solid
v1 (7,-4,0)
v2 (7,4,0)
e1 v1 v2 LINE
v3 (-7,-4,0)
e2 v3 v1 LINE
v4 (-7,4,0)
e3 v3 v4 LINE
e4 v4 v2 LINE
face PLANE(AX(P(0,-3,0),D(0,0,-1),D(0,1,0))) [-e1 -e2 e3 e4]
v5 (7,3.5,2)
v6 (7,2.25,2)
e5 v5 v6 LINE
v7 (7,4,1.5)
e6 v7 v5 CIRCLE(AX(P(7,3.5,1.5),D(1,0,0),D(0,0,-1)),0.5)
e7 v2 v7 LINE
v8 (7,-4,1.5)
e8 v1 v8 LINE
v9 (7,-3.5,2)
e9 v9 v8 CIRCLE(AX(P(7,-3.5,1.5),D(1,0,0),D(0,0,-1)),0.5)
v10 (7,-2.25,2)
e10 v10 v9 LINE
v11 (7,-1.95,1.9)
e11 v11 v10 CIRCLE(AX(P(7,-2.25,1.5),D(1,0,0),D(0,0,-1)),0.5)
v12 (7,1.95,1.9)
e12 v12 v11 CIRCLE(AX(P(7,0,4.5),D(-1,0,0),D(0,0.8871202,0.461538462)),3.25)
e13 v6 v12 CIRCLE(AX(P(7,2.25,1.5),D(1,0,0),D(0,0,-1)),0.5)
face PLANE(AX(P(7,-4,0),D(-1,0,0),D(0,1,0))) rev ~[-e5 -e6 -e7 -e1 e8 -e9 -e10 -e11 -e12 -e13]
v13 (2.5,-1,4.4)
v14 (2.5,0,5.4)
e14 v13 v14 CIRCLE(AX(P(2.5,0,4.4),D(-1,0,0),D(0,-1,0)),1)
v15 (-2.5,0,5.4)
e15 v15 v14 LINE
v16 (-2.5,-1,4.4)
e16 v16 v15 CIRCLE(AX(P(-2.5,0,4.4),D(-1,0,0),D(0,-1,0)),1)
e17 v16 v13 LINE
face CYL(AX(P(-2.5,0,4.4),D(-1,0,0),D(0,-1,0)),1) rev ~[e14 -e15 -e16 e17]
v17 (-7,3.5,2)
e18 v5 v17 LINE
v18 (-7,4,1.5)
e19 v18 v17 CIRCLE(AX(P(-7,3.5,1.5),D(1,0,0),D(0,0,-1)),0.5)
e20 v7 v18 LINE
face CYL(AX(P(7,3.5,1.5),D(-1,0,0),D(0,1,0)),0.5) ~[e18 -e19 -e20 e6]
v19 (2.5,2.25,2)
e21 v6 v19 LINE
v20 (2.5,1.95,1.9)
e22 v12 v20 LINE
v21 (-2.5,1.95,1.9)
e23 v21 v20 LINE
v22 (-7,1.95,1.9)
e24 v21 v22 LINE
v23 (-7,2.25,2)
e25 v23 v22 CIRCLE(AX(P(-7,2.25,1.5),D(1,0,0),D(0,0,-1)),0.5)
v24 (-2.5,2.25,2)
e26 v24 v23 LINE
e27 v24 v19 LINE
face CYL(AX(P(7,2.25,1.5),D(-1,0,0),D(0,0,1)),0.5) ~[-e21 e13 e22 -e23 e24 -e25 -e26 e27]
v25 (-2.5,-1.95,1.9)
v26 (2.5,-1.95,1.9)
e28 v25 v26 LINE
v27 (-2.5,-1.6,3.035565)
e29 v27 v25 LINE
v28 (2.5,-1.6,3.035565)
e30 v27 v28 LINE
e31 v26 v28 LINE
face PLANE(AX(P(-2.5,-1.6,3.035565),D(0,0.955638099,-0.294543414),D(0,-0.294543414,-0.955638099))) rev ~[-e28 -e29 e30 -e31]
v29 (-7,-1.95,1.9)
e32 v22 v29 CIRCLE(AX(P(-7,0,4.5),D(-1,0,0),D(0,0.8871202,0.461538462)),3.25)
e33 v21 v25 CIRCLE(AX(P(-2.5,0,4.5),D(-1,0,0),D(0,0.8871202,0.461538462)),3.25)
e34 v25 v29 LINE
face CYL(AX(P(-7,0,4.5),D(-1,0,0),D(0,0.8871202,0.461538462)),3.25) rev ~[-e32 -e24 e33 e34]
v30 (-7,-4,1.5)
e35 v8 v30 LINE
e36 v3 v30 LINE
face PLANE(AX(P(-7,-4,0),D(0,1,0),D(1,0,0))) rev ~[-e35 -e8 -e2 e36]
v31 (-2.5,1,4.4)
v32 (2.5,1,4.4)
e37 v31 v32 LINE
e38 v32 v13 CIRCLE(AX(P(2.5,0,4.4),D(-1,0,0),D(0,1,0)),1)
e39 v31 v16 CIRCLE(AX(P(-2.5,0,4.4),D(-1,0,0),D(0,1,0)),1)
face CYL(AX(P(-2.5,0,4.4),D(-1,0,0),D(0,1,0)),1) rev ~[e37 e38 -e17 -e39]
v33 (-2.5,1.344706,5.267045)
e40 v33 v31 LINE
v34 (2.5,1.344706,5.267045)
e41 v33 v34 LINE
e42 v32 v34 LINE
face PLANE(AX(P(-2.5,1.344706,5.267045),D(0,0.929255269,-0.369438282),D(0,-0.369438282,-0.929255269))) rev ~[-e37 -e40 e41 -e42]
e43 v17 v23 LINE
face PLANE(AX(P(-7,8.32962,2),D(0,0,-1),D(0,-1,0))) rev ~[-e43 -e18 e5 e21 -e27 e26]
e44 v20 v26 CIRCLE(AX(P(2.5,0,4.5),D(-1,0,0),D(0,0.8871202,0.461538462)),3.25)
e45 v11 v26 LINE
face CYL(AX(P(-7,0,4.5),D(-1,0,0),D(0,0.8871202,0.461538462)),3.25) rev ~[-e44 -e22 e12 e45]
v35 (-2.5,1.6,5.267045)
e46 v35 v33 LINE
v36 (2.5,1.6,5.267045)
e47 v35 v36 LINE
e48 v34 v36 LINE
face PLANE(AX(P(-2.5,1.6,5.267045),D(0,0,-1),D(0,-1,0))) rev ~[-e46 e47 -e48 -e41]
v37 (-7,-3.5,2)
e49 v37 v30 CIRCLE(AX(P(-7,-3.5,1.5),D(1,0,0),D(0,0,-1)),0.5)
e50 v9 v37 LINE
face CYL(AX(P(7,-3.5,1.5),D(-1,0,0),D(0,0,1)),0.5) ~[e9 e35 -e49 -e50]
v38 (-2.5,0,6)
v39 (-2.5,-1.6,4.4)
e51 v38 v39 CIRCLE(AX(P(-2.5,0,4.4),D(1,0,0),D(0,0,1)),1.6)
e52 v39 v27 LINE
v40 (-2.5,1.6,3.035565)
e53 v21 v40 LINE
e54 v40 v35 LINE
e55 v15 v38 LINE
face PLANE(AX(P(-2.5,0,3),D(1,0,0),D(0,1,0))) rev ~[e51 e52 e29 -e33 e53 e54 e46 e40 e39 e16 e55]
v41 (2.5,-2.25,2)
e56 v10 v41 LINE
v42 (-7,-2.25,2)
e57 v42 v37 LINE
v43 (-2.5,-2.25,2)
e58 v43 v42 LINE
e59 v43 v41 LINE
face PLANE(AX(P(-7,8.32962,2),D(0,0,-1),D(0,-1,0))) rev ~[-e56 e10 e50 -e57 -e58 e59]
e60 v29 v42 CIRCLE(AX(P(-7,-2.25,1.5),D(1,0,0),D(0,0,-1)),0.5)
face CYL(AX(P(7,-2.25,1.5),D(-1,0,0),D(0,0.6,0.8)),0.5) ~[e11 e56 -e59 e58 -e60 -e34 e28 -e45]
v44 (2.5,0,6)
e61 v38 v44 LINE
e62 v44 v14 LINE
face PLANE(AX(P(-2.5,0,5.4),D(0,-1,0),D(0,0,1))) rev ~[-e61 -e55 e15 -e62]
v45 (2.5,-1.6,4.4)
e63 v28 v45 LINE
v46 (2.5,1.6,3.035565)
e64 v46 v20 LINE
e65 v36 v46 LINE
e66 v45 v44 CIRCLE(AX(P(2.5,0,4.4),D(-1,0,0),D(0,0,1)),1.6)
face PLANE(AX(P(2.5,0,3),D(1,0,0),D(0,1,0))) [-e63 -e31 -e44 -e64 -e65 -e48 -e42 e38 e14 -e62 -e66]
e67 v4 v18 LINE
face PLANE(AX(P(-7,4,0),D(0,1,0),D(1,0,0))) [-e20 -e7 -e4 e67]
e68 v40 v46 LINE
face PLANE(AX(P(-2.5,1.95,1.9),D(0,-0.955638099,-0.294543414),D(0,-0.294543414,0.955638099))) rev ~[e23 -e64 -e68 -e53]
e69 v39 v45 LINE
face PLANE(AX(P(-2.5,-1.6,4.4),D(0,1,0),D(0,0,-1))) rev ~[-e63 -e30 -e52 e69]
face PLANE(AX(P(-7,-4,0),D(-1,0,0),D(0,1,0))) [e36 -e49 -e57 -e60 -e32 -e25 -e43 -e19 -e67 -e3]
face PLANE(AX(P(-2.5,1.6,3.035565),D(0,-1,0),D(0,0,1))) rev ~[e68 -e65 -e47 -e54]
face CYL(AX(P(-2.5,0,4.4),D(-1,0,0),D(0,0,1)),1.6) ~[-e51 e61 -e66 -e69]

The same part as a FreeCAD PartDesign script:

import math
import FreeCAD as App
import Part
import Sketcher
Q = App.Units.Quantity


def edges_at(feature, points):
    """Names of the edges that pass closest to the given points."""
    edges = feature.Shape.Edges
    near = lambda p: min(range(len(edges)), key=lambda i: edges[i].distToShape(Part.Vertex(*p))[0])
    return sorted({f"Edge{near(p) + 1}" for p in points})

doc = App.newDocument("Part")
body = doc.addObject("PartDesign::Body", "Body")

sketch1 = body.newObject("Sketcher::SketchObject", "Sketch")
sketch1.AttachmentSupport = (doc.getObject("XY_Plane"), [""])
sketch1.MapMode = "FlatFace"
sketch1.addGeometry([
    Part.LineSegment(App.Vector(-7, 4, 0), App.Vector(-7, -4, 0)),
    Part.LineSegment(App.Vector(-7, -4, 0), App.Vector(7, -4, 0)),
    Part.LineSegment(App.Vector(7, -4, 0), App.Vector(7, 4, 0)),
    Part.LineSegment(App.Vector(7, 4, 0), App.Vector(-7, 4, 0)),
], False)
sketch1.addConstraint([
    Sketcher.Constraint("Coincident", 0, 2, 1, 1),
    Sketcher.Constraint("Coincident", 1, 2, 2, 1),
    Sketcher.Constraint("Coincident", 2, 2, 3, 1),
    Sketcher.Constraint("Coincident", 3, 2, 0, 1),
    Sketcher.Constraint("Vertical", 0),
    Sketcher.Constraint("Horizontal", 1),
    Sketcher.Constraint("Vertical", 2),
    Sketcher.Constraint("Horizontal", 3),
    Sketcher.Constraint("Symmetric", 0, 2, 2, 2, -1, 1),
    Sketcher.Constraint("DistanceX", 1, 1, 1, 2, Q("14 mm")),
    Sketcher.Constraint("DistanceY", 0, 2, 0, 1, Q("8 mm")),
])
pad1 = body.newObject("PartDesign::Pad", "Pad")
pad1.Profile = sketch1
pad1.Length = 6

sketch2 = body.newObject("Sketcher::SketchObject", "Sketch001")
sketch2.AttachmentSupport = (doc.getObject("YZ_Plane"), [""])
sketch2.MapMode = "FlatFace"
sketch2.AttachmentOffset = App.Placement(App.Vector(0, 0, -7), App.Rotation())
sketch2.addGeometry([
    Part.ArcOfCircle(Part.Circle(App.Vector(0, 4.5, 0), App.Vector(0, 0, 1), 3.2), math.radians(27), math.radians(153)),
    Part.ArcOfCircle(Part.Circle(App.Vector(0, 4.5, 0), App.Vector(0, 0, 1), 3.2), math.radians(180), math.radians(387)),
    Part.ArcOfCircle(Part.Circle(App.Vector(0, 4.5, 0), App.Vector(0, 0, 1), 3.2), math.radians(153), math.radians(180)),
], False)
sketch2.addConstraint([
    Sketcher.Constraint("Tangent", 0, 1, 1, 2),
    Sketcher.Constraint("Tangent", 1, 1, 2, 2),
    Sketcher.Constraint("Tangent", 2, 1, 0, 2),
    Sketcher.Constraint("Symmetric", 0, 1, 2, 1, -2),
    Sketcher.Constraint("Horizontal", 2, 3, 1, 1),
    Sketcher.Constraint("Radius", 0, Q("3.25 mm")),
    Sketcher.Constraint("DistanceY", -1, 1, 0, 1, Q("6 mm")),
    Sketcher.Constraint("DistanceY", -1, 1, 0, 3, Q("4.5 mm")),
])
pocket1 = body.newObject("PartDesign::Pocket", "Pocket")
pocket1.Profile = sketch2
pocket1.Length = 50
pocket1.Midplane = True

sketch3 = body.newObject("Sketcher::SketchObject", "Sketch002")
sketch3.AttachmentSupport = (doc.getObject("YZ_Plane"), [""])
sketch3.MapMode = "FlatFace"
sketch3.AttachmentOffset = App.Placement(App.Vector(0, 0, -7), App.Rotation())
sketch3.addGeometry([
    Part.LineSegment(App.Vector(-8, 2, 0), App.Vector(-8, 11, 0)),
    Part.LineSegment(App.Vector(-8, 11, 0), App.Vector(8, 11, 0)),
    Part.LineSegment(App.Vector(8, 11, 0), App.Vector(8, 2, 0)),
    Part.LineSegment(App.Vector(8, 2, 0), App.Vector(-8, 2, 0)),
], False)
sketch3.addConstraint([
    Sketcher.Constraint("Coincident", 0, 2, 1, 1),
    Sketcher.Constraint("Coincident", 1, 2, 2, 1),
    Sketcher.Constraint("Coincident", 2, 2, 3, 1),
    Sketcher.Constraint("Coincident", 3, 2, 0, 1),
    Sketcher.Constraint("Vertical", 0),
    Sketcher.Constraint("Horizontal", 1),
    Sketcher.Constraint("Vertical", 2),
    Sketcher.Constraint("Horizontal", 3),
    Sketcher.Constraint("DistanceY", -1, 1, 2, 2, Q("2 mm")),
    Sketcher.Constraint("DistanceX", 1, 1, 1, 2, Q("16.659239 mm")),
    Sketcher.Constraint("DistanceY", 0, 1, 0, 2, Q("9.01804 mm")),
    Sketcher.Constraint("DistanceX", 0, 2, -1, 1, Q("8.32962 mm")),
])
pocket2 = body.newObject("PartDesign::Pocket", "Pocket001")
pocket2.Profile = sketch3
pocket2.Length = 30
pocket2.Midplane = True
doc.recompute()

fillet = body.newObject("PartDesign::Fillet", "Fillet")
fillet.Base = (pocket2, edges_at(pocket2, [
    (0, 4, 2),
    (0, 2.077, 2),
    (0, -2.077, 2),
    (0, -4, 2),
]))
fillet.Radius = 0.5

sketch4 = body.newObject("Sketcher::SketchObject", "Sketch003")
sketch4.AttachmentSupport = (doc.getObject("YZ_Plane"), [""])
sketch4.MapMode = "FlatFace"
sketch4.addGeometry([
    Part.LineSegment(App.Vector(-3, 6, 0), App.Vector(-3, 0, 0)),
    Part.LineSegment(App.Vector(-3, 0, 0), App.Vector(3, 0, 0)),
    Part.LineSegment(App.Vector(3, 0, 0), App.Vector(3, 6, 0)),
    Part.LineSegment(App.Vector(3, 6, 0), App.Vector(-3, 6, 0)),
], False)
sketch4.addConstraint([
    Sketcher.Constraint("Coincident", 0, 2, 1, 1),
    Sketcher.Constraint("Coincident", 1, 2, 2, 1),
    Sketcher.Constraint("Coincident", 2, 2, 3, 1),
    Sketcher.Constraint("Coincident", 3, 2, 0, 1),
    Sketcher.Constraint("Vertical", 0),
    Sketcher.Constraint("Horizontal", 1),
    Sketcher.Constraint("Vertical", 2),
    Sketcher.Constraint("Horizontal", 3),
    Sketcher.Constraint("Symmetric", 0, 2, 1, 2, -1, 1),
    Sketcher.Constraint("Equal", 3, 0),
    Sketcher.Constraint("DistanceX", 1, 1, 1, 2, Q("6 mm")),
])
pad2 = body.newObject("PartDesign::Pad", "Pad001")
pad2.Profile = sketch4
pad2.Length = 5
pad2.Midplane = True

sketch5 = body.newObject("Sketcher::SketchObject", "Sketch004")
sketch5.AttachmentSupport = (doc.getObject("YZ_Plane"), [""])
sketch5.MapMode = "FlatFace"
sketch5.AttachmentOffset = App.Placement(App.Vector(0, 0, -2.5), App.Rotation())
sketch5.addGeometry([
    Part.LineSegment(App.Vector(1.34, 5.27, 0), App.Vector(1, 4.4, 0)),
    Part.ArcOfCircle(Part.Circle(App.Vector(0, 4.4, 0), App.Vector(0, 0, 1), 1), math.radians(180), math.radians(360)),
    Part.ArcOfCircle(Part.Circle(App.Vector(0, 4.4, 0), App.Vector(0, 0, 1), 1), math.radians(90), math.radians(180)),
    Part.LineSegment(App.Vector(0, 5.4, 0), App.Vector(0, 6, 0)),
    Part.LineSegment(App.Vector(0, 6, 0), App.Vector(3, 6, 0)),
    Part.LineSegment(App.Vector(3, 6, 0), App.Vector(3, 2, 0)),
    Part.LineSegment(App.Vector(3, 2, 0), App.Vector(2.25, 2, 0)),
    Part.ArcOfCircle(Part.Circle(App.Vector(2.25, 1.5, 0), App.Vector(0, 0, 1), 0.5), math.radians(90), math.radians(127)),
    Part.LineSegment(App.Vector(1.95, 1.9, 0), App.Vector(1.6, 3.04, 0)),
    Part.LineSegment(App.Vector(1.6, 3.04, 0), App.Vector(1.6, 5.27, 0)),
    Part.LineSegment(App.Vector(1.6, 5.27, 0), App.Vector(1.34, 5.27, 0)),
    Part.ArcOfCircle(Part.Circle(App.Vector(0, 4.4, 0), App.Vector(0, 0, 1), 1.6), math.radians(90), math.radians(180)),
    Part.LineSegment(App.Vector(-1.6, 4.4, 0), App.Vector(-1.6, 3.04, 0)),
    Part.LineSegment(App.Vector(-1.6, 3.04, 0), App.Vector(-1.95, 1.9, 0)),
    Part.ArcOfCircle(Part.Circle(App.Vector(-2.25, 1.5, 0), App.Vector(0, 0, 1), 0.5), math.radians(53), math.radians(90)),
    Part.LineSegment(App.Vector(-2.25, 2, 0), App.Vector(-3, 2, 0)),
    Part.LineSegment(App.Vector(-3, 2, 0), App.Vector(-3, 6, 0)),
    Part.LineSegment(App.Vector(-3, 6, 0), App.Vector(0, 6, 0)),
], False)
sketch5.addConstraint([
    Sketcher.Constraint("Coincident", 0, 2, 1, 2),
    Sketcher.Constraint("Tangent", 1, 1, 2, 2),
    Sketcher.Constraint("Coincident", 2, 1, 3, 1),
    Sketcher.Constraint("Coincident", 3, 2, 4, 1),
    Sketcher.Constraint("Coincident", 4, 2, 5, 1),
    Sketcher.Constraint("Coincident", 5, 2, 6, 1),
    Sketcher.Constraint("Tangent", 6, 2, 7, 1),
    Sketcher.Constraint("Coincident", 7, 2, 8, 1),
    Sketcher.Constraint("Coincident", 8, 2, 9, 1),
    Sketcher.Constraint("Coincident", 9, 2, 10, 1),
    Sketcher.Constraint("Coincident", 10, 2, 0, 1),
    Sketcher.Constraint("Tangent", 11, 2, 12, 1),
    Sketcher.Constraint("Coincident", 12, 2, 13, 1),
    Sketcher.Constraint("Coincident", 13, 2, 14, 1),
    Sketcher.Constraint("Tangent", 14, 2, 15, 1),
    Sketcher.Constraint("Coincident", 15, 2, 16, 1),
    Sketcher.Constraint("Coincident", 16, 2, 17, 1),
    Sketcher.Constraint("Tangent", 17, 2, 11, 1),
    Sketcher.Constraint("Vertical", 3),
    Sketcher.Constraint("Horizontal", 4),
    Sketcher.Constraint("Vertical", 5),
    Sketcher.Constraint("Horizontal", 6),
    Sketcher.Constraint("Vertical", 9),
    Sketcher.Constraint("Horizontal", 10),
    Sketcher.Constraint("Vertical", 12),
    Sketcher.Constraint("Horizontal", 15),
    Sketcher.Constraint("Vertical", 16),
    Sketcher.Constraint("Horizontal", 17),
    Sketcher.Constraint("Coincident", 11, 3, 1, 3),
    Sketcher.Constraint("Coincident", 17, 2, 3, 2),
    Sketcher.Constraint("Equal", 1, 2),
    Sketcher.Constraint("Equal", 7, 14),
    Sketcher.Constraint("Symmetric", 7, 3, 14, 3, -2),
    Sketcher.Constraint("Symmetric", 0, 2, 1, 1, -2),
    Sketcher.Constraint("Symmetric", 8, 2, 12, 2, -2),
    Sketcher.Constraint("Horizontal", 11, 3, 0, 2),
    Sketcher.Constraint("Horizontal", 7, 2, 13, 2),
    Sketcher.Constraint("Equal", 6, 15),
    Sketcher.Constraint("Radius", 1, Q("1 mm")),
    Sketcher.Constraint("Radius", 7, Q("0.5 mm")),
    Sketcher.Constraint("Radius", 11, Q("1.6 mm")),
    Sketcher.Constraint("DistanceX", 4, 1, 4, 2, Q("3 mm")),
    Sketcher.Constraint("DistanceY", 5, 2, 5, 1, Q("4 mm")),
    Sketcher.Constraint("DistanceY", -1, 1, 3, 2, Q("6 mm")),
    Sketcher.Constraint("DistanceX", 6, 2, 6, 1, Q("0.75 mm")),
    Sketcher.Constraint("DistanceY", -1, 1, 7, 2, Q("1.9 mm")),
    Sketcher.Constraint("DistanceY", 9, 1, 9, 2, Q("2.231479 mm")),
    Sketcher.Constraint("Distance", 8, Q("1.18828 mm")),
    Sketcher.Constraint("DistanceX", 10, 2, 10, 1, Q("0.255294 mm")),
])
pocket3 = body.newObject("PartDesign::Pocket", "Pocket002")
pocket3.Profile = sketch5
pocket3.Length = 25
pocket3.Reversed = True

doc.recompute()
